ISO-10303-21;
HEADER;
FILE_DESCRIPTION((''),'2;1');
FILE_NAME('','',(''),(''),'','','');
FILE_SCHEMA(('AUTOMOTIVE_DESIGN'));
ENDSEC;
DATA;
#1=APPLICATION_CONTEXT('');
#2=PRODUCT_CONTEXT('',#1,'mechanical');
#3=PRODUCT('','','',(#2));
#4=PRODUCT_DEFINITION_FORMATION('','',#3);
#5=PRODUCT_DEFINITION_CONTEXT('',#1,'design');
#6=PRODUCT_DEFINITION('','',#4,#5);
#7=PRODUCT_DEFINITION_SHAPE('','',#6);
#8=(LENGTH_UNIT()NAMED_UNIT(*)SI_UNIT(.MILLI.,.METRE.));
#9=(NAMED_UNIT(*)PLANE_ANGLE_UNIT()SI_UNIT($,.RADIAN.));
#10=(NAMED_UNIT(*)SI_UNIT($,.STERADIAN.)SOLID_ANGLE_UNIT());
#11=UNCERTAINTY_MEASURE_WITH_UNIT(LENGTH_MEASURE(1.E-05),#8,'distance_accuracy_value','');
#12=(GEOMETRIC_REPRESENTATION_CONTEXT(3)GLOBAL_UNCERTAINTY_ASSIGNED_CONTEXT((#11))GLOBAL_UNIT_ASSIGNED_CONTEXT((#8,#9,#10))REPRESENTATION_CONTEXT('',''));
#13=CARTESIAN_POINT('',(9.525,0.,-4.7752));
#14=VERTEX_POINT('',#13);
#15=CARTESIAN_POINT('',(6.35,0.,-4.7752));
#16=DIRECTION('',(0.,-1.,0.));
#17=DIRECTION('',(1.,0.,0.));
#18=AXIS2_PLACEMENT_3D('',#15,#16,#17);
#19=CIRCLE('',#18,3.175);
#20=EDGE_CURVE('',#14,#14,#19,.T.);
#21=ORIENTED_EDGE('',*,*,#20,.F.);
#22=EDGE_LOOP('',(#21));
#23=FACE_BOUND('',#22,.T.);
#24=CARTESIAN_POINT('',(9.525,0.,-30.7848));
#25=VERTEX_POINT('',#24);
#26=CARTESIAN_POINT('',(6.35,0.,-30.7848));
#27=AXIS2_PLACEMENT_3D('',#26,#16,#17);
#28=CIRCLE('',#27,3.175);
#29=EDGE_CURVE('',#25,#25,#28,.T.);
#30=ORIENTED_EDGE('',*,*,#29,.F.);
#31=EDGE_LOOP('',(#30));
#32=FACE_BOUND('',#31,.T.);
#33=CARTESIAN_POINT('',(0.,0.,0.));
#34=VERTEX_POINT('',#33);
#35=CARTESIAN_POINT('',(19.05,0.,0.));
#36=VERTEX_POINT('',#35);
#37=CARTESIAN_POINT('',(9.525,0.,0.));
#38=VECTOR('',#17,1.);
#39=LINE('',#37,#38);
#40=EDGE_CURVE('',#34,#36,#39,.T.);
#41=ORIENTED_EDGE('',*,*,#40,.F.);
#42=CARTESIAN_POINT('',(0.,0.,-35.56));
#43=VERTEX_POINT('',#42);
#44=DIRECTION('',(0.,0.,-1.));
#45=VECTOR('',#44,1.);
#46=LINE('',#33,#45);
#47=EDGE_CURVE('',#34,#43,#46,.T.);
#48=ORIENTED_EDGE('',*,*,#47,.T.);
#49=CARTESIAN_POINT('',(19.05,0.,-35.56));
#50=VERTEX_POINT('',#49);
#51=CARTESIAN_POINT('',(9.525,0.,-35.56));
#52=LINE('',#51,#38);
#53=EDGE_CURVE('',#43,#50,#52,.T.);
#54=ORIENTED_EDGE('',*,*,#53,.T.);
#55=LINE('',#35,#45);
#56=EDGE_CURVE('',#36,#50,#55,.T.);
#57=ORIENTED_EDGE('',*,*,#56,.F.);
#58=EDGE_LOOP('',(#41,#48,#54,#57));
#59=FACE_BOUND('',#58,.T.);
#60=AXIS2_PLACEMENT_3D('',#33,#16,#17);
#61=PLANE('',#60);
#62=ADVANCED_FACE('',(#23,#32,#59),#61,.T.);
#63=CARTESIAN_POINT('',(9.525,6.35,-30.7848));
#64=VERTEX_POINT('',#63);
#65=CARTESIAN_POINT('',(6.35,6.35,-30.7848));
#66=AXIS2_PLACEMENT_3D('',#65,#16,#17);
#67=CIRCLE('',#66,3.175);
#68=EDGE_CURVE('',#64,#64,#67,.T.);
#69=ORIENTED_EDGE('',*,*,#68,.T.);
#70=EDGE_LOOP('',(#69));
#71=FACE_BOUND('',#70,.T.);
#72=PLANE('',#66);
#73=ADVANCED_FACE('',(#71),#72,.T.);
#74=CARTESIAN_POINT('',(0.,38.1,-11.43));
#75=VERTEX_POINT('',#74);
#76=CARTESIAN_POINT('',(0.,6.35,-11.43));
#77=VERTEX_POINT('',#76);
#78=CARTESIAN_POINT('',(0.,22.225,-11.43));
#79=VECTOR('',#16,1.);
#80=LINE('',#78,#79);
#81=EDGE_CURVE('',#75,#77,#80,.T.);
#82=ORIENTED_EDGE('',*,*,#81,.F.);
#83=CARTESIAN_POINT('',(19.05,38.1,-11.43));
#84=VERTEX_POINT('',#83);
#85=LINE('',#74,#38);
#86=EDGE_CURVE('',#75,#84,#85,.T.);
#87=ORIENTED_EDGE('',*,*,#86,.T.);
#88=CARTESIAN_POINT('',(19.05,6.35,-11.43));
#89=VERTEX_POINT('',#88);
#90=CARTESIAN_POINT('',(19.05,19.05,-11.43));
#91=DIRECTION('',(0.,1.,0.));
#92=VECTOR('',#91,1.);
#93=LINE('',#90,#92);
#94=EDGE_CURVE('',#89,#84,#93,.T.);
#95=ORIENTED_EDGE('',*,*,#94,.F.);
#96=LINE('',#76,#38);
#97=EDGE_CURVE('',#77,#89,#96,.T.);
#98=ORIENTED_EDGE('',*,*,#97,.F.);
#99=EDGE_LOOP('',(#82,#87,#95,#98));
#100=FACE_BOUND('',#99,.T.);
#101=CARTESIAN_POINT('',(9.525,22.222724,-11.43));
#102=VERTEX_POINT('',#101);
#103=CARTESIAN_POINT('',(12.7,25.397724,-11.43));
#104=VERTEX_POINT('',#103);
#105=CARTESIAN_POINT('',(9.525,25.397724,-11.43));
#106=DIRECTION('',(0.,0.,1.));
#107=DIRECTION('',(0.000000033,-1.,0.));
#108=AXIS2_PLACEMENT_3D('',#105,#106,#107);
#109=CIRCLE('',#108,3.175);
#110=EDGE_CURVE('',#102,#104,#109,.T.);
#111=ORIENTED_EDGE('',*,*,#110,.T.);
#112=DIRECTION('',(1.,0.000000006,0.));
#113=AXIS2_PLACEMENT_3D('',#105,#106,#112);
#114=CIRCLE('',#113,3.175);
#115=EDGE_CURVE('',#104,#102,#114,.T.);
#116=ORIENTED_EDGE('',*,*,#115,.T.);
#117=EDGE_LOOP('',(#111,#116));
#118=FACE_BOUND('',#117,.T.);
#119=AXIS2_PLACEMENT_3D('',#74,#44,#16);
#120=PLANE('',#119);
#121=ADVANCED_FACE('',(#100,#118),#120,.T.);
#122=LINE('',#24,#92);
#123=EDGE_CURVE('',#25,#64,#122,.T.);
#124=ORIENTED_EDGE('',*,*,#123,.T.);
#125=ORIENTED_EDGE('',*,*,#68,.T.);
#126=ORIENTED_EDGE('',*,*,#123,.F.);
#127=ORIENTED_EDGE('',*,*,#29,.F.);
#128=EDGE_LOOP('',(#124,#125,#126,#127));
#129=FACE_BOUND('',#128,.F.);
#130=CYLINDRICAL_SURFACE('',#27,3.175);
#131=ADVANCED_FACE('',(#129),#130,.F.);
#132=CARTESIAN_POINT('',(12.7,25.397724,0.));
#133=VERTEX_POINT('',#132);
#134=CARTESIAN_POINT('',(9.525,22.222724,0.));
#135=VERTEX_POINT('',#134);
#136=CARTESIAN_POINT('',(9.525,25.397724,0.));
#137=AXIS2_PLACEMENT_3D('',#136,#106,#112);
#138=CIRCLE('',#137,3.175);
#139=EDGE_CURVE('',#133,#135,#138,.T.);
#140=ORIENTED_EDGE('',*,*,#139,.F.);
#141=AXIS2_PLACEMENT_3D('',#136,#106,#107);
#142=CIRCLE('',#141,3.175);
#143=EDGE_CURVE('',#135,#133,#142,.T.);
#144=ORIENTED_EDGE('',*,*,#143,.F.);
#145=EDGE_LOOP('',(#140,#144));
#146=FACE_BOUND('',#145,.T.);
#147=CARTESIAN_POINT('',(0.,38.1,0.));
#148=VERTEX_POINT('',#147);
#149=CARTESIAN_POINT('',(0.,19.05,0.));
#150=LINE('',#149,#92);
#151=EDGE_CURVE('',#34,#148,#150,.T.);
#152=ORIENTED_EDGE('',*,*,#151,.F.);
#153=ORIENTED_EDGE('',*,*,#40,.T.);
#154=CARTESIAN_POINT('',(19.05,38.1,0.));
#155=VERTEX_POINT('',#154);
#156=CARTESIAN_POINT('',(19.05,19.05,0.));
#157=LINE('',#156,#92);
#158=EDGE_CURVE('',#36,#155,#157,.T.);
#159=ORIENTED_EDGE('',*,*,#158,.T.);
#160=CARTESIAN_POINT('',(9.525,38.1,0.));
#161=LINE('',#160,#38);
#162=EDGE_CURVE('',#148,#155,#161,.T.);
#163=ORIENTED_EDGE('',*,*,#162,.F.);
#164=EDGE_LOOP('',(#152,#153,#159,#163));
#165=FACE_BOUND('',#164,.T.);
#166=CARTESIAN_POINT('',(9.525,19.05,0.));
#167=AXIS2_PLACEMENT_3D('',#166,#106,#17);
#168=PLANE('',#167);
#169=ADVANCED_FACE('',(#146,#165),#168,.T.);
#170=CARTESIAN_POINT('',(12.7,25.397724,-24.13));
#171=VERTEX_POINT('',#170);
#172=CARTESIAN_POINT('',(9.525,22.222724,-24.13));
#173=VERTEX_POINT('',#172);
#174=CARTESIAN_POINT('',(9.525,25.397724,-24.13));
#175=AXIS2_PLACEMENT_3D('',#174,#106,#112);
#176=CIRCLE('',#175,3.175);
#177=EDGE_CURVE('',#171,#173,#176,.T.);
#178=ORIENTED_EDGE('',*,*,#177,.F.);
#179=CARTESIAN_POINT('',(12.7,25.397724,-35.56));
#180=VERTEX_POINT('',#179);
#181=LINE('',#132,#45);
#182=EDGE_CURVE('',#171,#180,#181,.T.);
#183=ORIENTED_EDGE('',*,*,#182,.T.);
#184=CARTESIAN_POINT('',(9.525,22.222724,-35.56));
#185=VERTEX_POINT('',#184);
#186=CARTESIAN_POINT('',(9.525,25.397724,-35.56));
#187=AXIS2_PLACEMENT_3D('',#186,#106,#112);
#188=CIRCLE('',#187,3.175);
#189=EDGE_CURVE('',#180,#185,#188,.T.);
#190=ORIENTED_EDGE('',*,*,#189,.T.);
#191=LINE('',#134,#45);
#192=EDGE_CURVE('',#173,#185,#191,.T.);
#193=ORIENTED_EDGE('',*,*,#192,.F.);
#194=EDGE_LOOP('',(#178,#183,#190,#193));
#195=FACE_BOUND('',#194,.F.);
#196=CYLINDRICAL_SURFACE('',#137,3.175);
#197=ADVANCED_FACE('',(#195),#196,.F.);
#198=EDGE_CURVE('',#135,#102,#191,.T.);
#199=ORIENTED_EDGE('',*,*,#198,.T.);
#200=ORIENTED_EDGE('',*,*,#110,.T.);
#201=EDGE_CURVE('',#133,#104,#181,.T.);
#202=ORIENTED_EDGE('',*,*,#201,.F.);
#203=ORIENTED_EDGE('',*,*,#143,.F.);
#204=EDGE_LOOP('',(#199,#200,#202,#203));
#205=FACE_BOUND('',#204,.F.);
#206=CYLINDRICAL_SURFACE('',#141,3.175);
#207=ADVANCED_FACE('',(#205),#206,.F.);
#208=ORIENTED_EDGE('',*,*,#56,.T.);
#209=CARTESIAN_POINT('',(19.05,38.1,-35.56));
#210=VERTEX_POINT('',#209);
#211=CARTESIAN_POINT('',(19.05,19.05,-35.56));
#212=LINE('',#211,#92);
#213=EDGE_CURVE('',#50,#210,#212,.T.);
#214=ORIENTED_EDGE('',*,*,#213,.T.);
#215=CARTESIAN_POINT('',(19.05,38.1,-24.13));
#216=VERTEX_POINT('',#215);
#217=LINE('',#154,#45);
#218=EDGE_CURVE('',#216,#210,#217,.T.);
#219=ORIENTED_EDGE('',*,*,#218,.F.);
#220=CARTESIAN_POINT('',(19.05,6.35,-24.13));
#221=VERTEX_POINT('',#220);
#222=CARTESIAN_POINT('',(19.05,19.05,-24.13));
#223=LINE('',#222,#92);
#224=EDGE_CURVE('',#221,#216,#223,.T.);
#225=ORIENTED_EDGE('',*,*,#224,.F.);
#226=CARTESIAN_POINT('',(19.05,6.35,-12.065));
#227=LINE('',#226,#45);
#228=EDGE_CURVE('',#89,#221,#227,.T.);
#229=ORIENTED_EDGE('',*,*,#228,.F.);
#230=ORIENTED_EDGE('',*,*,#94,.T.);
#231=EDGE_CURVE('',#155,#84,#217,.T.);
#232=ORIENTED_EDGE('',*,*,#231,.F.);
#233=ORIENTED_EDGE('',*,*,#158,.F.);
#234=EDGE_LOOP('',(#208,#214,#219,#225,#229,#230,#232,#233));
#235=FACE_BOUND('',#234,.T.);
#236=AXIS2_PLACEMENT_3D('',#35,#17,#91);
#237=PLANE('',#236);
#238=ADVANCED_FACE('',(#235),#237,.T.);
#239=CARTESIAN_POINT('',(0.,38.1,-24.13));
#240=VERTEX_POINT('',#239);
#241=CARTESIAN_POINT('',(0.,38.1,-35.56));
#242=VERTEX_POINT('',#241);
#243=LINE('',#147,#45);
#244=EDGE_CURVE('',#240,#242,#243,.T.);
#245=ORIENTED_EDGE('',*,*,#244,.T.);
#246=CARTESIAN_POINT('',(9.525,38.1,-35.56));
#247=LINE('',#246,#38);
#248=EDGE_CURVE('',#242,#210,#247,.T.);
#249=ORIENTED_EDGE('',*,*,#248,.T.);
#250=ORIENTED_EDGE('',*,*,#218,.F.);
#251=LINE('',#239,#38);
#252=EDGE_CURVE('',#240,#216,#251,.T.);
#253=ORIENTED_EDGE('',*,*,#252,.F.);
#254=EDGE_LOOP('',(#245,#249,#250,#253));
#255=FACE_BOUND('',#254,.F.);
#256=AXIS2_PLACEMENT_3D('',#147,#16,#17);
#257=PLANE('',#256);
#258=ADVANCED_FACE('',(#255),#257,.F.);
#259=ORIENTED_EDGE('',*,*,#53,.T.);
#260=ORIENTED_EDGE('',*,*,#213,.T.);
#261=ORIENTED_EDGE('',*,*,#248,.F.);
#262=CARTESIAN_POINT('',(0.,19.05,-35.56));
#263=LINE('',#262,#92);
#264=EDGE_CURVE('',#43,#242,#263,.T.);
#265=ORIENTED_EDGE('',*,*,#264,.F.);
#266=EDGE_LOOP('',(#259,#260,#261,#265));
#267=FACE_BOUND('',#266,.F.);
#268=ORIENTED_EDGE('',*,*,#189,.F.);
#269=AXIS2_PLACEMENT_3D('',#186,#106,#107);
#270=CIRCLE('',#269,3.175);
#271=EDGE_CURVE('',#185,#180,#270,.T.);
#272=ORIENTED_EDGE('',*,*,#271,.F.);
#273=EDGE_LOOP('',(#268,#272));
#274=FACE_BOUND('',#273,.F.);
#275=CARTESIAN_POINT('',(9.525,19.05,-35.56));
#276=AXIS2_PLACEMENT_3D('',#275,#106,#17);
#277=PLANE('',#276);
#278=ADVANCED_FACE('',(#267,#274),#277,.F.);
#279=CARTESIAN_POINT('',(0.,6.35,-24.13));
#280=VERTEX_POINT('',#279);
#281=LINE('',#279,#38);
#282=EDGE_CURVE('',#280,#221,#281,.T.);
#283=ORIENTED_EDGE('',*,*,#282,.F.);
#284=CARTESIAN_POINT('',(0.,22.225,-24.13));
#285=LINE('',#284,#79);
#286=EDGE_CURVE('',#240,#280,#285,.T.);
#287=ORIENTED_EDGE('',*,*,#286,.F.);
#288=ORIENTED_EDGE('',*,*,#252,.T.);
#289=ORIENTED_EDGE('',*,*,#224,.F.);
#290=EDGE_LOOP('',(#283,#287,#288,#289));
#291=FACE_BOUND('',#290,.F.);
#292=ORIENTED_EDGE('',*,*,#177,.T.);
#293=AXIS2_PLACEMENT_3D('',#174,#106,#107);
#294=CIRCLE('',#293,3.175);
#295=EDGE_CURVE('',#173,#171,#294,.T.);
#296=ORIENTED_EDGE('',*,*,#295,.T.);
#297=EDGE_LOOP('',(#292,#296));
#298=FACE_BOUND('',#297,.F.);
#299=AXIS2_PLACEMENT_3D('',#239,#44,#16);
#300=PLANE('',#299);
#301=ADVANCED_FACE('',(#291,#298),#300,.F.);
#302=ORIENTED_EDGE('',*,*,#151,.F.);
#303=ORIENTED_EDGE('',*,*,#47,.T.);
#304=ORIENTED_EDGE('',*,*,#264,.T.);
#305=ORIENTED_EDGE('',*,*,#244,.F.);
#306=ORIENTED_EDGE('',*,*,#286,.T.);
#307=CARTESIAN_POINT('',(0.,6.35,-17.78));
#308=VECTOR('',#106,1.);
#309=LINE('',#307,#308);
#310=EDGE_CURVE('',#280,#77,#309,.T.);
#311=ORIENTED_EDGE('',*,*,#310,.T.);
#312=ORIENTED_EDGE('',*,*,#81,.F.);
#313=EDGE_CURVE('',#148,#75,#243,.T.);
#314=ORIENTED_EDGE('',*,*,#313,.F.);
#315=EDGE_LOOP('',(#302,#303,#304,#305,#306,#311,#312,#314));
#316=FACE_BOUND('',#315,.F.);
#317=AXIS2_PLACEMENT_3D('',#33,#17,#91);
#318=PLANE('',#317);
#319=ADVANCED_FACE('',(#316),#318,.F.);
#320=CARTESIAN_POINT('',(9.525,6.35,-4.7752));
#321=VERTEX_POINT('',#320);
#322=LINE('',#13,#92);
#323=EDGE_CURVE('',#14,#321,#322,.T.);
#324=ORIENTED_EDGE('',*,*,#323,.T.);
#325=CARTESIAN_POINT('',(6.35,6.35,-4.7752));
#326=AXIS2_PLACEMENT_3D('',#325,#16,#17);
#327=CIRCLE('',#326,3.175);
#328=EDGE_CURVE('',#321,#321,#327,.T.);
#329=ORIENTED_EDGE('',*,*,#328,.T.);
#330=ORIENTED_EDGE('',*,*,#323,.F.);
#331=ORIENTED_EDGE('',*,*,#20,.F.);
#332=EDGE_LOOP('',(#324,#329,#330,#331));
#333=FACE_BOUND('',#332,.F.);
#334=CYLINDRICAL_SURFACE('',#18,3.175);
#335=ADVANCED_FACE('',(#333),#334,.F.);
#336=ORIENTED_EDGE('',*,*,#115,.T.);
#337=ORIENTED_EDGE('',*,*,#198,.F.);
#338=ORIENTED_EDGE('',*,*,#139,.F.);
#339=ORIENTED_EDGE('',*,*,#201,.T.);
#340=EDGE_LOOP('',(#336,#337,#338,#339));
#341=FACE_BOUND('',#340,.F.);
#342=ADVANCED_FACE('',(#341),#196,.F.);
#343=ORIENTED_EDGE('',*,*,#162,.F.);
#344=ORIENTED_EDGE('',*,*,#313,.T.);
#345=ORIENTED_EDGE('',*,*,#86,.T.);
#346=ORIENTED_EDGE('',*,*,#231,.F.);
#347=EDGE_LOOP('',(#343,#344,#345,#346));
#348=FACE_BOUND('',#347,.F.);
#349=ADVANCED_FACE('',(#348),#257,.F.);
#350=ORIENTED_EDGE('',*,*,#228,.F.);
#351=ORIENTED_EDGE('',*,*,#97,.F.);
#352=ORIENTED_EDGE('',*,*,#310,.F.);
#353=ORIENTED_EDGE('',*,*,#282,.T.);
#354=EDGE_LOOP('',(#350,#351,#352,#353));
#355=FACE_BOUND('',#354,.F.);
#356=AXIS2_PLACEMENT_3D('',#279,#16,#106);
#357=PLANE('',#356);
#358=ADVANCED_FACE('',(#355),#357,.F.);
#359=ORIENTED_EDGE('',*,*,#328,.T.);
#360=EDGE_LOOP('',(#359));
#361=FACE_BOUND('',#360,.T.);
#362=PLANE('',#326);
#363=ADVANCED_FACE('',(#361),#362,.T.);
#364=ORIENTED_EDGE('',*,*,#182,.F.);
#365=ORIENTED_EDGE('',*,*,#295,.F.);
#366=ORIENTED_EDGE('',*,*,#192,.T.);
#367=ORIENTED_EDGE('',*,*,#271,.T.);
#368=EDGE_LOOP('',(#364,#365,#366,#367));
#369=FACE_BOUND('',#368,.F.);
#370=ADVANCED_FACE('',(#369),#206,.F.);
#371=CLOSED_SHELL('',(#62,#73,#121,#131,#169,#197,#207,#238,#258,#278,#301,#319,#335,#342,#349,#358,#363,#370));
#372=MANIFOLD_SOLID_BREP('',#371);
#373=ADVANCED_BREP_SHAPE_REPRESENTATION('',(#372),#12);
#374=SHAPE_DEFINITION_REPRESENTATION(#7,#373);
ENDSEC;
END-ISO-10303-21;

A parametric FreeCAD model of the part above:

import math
import FreeCAD as App
import Part
import Sketcher

V = App.Vector
Q = App.Units.Quantity


def add_polygon(sketch, points):
    """Adds a closed chain of lines whose ends are joined by coincident constraints."""
    first, n = sketch.GeometryCount, len(points)
    for a, b in zip(points, points[1:] + points[:1]):
        sketch.addGeometry(Part.LineSegment(App.Vector(*a, 0), App.Vector(*b, 0)), False)
    for i in range(n):
        sketch.addConstraint(Sketcher.Constraint("Coincident", first + i, 2, first + (i + 1) % n, 1))

doc = App.newDocument("Part")
params = doc.addObject("Spreadsheet::Sheet", "Params")
for row, (alias, value) in enumerate([
    ("sketch1_height", "1.5 in"),
    ("sketch1_width", "0.75 in"),
    ("pad1_length", "1.4 in"),
    ("sketch2_height", "0.5 in"),
    ("sketch2_width", "1.25 in"),
    ("pocket1_length", "1 in"),
    ("sketch3_radius", "0.125 in"),
    ("sketch4_diameter", "0.25 in"),
    ("pocket3_length", "0.25 in"),
], start=1):
    params.set(f"A{row}", alias)
    params.set(f"B{row}", "=" + value)
    params.setAlias(f"B{row}", alias)

body = doc.addObject("PartDesign::Body", "Body")

# Sketch on XY plane
sketch1 = doc.addObject("Sketcher::SketchObject", "Sketch")
body.addObject(sketch1)
sketch1.AttachmentSupport = (doc.XY_Plane, [""])
sketch1.MapMode = "FlatFace"
add_polygon(sketch1, [(0, 38), (0, 0), (19, 0), (19, 38)])  # lines 0-3
sketch1.addConstraint([
    Sketcher.Constraint("Vertical", 0),
    Sketcher.Constraint("Horizontal", 1),
    Sketcher.Constraint("Vertical", 2),
    Sketcher.Constraint("Horizontal", 3),
    Sketcher.Constraint("Coincident", 0, 2, -1, 1),
    Sketcher.Constraint("DistanceY", 0, 2, 0, 1, Q("1.5 in")),
    Sketcher.Constraint("DistanceX", 1, 1, 1, 2, Q("0.75 in")),
])
sketch1.setExpression("Constraints[9]", "Params.sketch1_height")
sketch1.setExpression("Constraints[10]", "Params.sketch1_width")
pad1 = doc.addObject("PartDesign::Pad", "Pad")
body.addObject(pad1)
pad1.Profile = sketch1
pad1.setExpression("Length", "Params.pad1_length")
pad1.Reversed = True

# Sketch on YZ plane
sketch2 = doc.addObject("Sketcher::SketchObject", "Sketch001")
body.addObject(sketch2)
sketch2.AttachmentSupport = (doc.YZ_Plane, [""])
sketch2.MapMode = "FlatFace"
add_polygon(sketch2, [(38, -11), (38, -24), (6, -24), (6, -11)])  # lines 0-3
sketch2.addConstraint([
    Sketcher.Constraint("Vertical", 0),
    Sketcher.Constraint("Horizontal", 1),
    Sketcher.Constraint("Vertical", 2),
    Sketcher.Constraint("Horizontal", 3),
    Sketcher.Constraint("DistanceY", 0, 2, 0, 1, Q("0.5 in")),
    Sketcher.Constraint("DistanceX", 1, 2, 1, 1, Q("1.25 in")),
    Sketcher.Constraint("DistanceX", -1, 1, 0, 2, Q("1.5 in")),
    Sketcher.Constraint("DistanceY", 0, 2, -1, 1, Q("0.95 in")),
])
sketch2.setExpression("Constraints[8]", "Params.sketch2_height")
sketch2.setExpression("Constraints[9]", "Params.sketch2_width")
pocket1 = doc.addObject("PartDesign::Pocket", "Pocket")
body.addObject(pocket1)
pocket1.Profile = sketch2
pocket1.setExpression("Length", "Params.pocket1_length")
pocket1.Reversed = True

# Sketch on XY plane
sketch3 = doc.addObject("Sketcher::SketchObject", "Sketch002")
body.addObject(sketch3)
sketch3.AttachmentSupport = (doc.XY_Plane, [""])
sketch3.MapMode = "FlatFace"
sketch3.addGeometry([
    Part.ArcOfCircle(Part.Circle(V(9.5, 25.4, 0), V(0, 0, 1), 3.2), math.radians(0), math.radians(270)),
    Part.ArcOfCircle(Part.Circle(V(9.5, 25.4, 0), V(0, 0, 1), 3.2), math.radians(-90), math.radians(0)),
], False)
sketch3.addConstraint([
    Sketcher.Constraint("Tangent", 0, 1, 1, 2),
    Sketcher.Constraint("Coincident", 1, 1, 0, 2),
    Sketcher.Constraint("Horizontal", 1, 3, 0, 1),
    Sketcher.Constraint("Vertical", 0, 3, 1, 1),
    Sketcher.Constraint("Radius", 0, Q("0.125 in")),
    Sketcher.Constraint("DistanceX", -1, 1, 0, 1, Q("0.5 in")),
    Sketcher.Constraint("DistanceY", -1, 1, 0, 3, 25.397724),
])
sketch3.setExpression("Constraints[4]", "Params.sketch3_radius")
pocket2 = doc.addObject("PartDesign::Pocket", "Pocket001")
body.addObject(pocket2)
pocket2.Profile = sketch3
pocket2.Type = "ThroughAll"

# Sketch on XZ plane
sketch4 = doc.addObject("Sketcher::SketchObject", "Sketch003")
body.addObject(sketch4)
sketch4.AttachmentSupport = (doc.XZ_Plane, [""])
sketch4.MapMode = "FlatFace"
sketch4.addGeometry([
    Part.Circle(V(6.3, -30.8, 0), V(0, 0, 1), 3.2),
    Part.Circle(V(6.3, -4.8, 0), V(0, 0, 1), 3.2),
], False)
sketch4.addConstraint([
    Sketcher.Constraint("Equal", 0, 1),
    Sketcher.Constraint("Vertical", 0, 3, 1, 3),
    Sketcher.Constraint("Diameter", 0, Q("0.25 in")),
    Sketcher.Constraint("DistanceX", -1, 1, 0, 3, Q("0.25 in")),
    Sketcher.Constraint("DistanceY", 0, 3, -1, 1, Q("1.212 in")),
    Sketcher.Constraint("DistanceY", 1, 3, -1, 1, Q("0.188 in")),
])
sketch4.setExpression("Constraints[2]", "Params.sketch4_diameter")
pocket3 = doc.addObject("PartDesign::Pocket", "Pocket002")
body.addObject(pocket3)
pocket3.Profile = sketch4
pocket3.setExpression("Length", "Params.pocket3_length")

doc.recompute()
